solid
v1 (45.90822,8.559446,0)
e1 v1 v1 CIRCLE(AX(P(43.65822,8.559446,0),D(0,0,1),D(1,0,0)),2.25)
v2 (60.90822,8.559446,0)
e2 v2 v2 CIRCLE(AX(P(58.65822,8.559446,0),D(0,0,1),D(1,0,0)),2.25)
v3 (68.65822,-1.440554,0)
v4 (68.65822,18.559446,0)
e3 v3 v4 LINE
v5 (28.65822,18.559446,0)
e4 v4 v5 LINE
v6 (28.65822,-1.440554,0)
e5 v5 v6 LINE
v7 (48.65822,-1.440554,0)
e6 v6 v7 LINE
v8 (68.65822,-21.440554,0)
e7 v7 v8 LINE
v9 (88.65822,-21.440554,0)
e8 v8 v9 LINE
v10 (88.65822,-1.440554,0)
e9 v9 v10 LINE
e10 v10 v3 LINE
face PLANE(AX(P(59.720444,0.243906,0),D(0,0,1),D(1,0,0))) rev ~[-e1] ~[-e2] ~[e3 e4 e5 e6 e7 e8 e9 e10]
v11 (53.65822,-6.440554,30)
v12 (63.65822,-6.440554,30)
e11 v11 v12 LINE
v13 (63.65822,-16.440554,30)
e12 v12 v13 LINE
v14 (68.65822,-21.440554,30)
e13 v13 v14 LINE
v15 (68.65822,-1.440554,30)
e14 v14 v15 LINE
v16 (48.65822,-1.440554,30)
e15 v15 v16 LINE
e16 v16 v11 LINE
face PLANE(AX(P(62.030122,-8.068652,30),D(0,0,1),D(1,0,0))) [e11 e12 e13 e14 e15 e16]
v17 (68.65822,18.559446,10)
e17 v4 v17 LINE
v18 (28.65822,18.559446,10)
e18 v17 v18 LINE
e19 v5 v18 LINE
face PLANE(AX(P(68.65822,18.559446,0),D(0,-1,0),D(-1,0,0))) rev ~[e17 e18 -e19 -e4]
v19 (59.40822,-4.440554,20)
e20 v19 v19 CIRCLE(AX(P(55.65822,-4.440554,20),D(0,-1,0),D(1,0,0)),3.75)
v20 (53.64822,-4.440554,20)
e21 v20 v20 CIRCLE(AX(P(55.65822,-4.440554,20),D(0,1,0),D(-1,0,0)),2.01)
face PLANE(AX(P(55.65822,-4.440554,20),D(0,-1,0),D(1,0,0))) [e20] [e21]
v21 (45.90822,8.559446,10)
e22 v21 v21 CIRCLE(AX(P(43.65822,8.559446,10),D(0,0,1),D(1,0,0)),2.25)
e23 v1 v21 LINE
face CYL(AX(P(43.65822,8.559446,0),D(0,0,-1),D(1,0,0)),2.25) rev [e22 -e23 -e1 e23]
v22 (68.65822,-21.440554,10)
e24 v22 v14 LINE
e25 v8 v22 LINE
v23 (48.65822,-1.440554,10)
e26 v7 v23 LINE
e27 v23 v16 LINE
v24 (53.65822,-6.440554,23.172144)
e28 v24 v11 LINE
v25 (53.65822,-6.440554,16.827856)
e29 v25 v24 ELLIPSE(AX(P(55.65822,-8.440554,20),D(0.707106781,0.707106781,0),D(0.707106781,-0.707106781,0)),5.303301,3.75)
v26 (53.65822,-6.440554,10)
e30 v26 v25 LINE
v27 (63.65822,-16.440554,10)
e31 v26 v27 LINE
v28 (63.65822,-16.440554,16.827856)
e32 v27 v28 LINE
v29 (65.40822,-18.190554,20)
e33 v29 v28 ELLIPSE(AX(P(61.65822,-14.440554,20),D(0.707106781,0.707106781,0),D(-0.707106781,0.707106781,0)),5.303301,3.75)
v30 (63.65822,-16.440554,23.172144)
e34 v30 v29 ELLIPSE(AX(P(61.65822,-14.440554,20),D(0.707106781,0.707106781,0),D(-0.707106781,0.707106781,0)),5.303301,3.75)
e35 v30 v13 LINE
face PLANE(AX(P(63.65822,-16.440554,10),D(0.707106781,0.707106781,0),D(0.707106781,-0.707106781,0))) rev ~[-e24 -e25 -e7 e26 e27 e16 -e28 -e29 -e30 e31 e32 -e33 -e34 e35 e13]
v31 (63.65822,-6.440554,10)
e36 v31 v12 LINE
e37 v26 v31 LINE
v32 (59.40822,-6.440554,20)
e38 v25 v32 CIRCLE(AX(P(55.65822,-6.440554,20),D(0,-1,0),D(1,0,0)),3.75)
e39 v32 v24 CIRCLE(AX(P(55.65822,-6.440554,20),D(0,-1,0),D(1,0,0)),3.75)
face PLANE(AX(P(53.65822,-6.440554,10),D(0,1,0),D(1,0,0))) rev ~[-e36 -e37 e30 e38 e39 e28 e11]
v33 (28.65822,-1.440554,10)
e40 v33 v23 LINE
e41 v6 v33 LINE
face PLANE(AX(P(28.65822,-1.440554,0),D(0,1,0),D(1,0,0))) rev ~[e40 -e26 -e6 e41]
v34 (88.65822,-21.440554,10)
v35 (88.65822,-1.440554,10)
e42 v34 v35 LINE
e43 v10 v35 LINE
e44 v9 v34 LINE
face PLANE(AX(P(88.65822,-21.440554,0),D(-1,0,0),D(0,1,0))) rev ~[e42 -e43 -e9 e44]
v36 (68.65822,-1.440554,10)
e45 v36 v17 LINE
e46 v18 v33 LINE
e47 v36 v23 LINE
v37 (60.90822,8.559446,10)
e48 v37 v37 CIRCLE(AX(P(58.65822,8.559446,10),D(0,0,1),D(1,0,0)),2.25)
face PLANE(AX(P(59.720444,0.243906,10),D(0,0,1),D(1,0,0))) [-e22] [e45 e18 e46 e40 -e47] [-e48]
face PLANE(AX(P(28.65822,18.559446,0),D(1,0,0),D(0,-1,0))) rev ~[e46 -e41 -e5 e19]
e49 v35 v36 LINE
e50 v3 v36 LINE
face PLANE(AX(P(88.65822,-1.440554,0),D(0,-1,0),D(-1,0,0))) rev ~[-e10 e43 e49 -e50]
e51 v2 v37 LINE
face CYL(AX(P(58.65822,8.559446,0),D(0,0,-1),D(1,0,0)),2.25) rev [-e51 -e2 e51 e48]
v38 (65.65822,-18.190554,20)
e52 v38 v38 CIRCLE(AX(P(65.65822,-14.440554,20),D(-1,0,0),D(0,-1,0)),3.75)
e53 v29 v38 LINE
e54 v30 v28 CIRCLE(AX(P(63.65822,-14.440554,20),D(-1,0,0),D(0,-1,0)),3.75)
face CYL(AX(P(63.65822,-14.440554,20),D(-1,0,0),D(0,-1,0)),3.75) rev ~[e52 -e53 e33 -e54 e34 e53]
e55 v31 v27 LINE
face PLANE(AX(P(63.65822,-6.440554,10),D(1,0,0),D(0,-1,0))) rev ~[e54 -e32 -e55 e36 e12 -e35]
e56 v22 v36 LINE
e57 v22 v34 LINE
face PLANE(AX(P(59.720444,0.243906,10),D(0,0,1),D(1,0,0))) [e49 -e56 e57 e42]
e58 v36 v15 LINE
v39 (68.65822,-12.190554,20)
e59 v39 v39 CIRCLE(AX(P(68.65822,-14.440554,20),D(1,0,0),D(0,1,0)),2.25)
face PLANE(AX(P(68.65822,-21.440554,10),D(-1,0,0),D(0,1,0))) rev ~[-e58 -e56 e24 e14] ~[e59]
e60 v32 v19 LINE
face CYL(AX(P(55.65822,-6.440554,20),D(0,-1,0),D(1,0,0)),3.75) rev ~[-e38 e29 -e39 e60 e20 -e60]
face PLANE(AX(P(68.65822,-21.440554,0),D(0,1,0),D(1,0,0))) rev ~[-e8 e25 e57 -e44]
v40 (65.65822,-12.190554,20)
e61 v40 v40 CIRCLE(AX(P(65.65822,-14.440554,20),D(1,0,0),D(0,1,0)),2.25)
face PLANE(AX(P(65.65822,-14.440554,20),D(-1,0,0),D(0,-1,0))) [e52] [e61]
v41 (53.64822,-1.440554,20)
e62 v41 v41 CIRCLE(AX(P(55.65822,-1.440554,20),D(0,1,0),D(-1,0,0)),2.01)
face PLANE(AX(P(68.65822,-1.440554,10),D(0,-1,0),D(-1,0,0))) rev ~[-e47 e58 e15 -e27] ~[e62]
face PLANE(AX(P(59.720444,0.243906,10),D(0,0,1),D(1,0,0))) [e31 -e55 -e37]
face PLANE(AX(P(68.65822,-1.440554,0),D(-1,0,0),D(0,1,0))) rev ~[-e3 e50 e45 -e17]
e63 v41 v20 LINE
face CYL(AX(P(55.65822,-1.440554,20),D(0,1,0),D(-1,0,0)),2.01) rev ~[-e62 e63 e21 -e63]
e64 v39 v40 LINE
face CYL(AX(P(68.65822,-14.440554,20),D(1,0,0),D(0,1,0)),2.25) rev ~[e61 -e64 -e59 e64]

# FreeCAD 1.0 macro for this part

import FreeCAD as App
import Part
import Sketcher

V = App.Vector

doc = App.newDocument("Part")
body = doc.addObject("PartDesign::Body", "Body")

# Sketch on XY plane
sketch1 = body.newObject("Sketcher::SketchObject", "Sketch")
sketch1.AttachmentSupport = (doc.getObject("XY_Plane"), [""])
sketch1.MapMode = "FlatFace"
sketch1.addGeometry([
    Part.LineSegment(V(28.65822, 18.559446, 0), V(28.65822, -1.440554, 0)),  # 0
    Part.LineSegment(V(28.65822, -1.440554, 0), V(48.65822, -1.440554, 0)),  # 1
    Part.LineSegment(V(48.65822, -1.440554, 0), V(68.65822, -21.440554, 0)),  # 2
    Part.LineSegment(V(68.65822, -21.440554, 0), V(88.65822, -21.440554, 0)),  # 3
    Part.LineSegment(V(88.65822, -21.440554, 0), V(88.65822, -1.440554, 0)),  # 4
    Part.LineSegment(V(88.65822, -1.440554, 0), V(68.65822, -1.440554, 0)),  # 5
    Part.LineSegment(V(68.65822, -1.440554, 0), V(68.65822, 18.559446, 0)),  # 6
    Part.LineSegment(V(68.65822, 18.559446, 0), V(28.65822, 18.559446, 0)),  # 7
    Part.Circle(V(43.65822, 8.559446, 0), V(0, 0, 1), 2.25),  # 8
    Part.Circle(V(58.65822, 8.559446, 0), V(0, 0, 1), 2.25),  # 9
], False)
sketch1.addConstraint([
    Sketcher.Constraint("Coincident", 0, 2, 1, 1),
    Sketcher.Constraint("Coincident", 1, 2, 2, 1),
    Sketcher.Constraint("Coincident", 2, 2, 3, 1),
    Sketcher.Constraint("Coincident", 3, 2, 4, 1),
    Sketcher.Constraint("Coincident", 4, 2, 5, 1),
    Sketcher.Constraint("Coincident", 5, 2, 6, 1),
    Sketcher.Constraint("Coincident", 6, 2, 7, 1),
    Sketcher.Constraint("Coincident", 7, 2, 0, 1),
    Sketcher.Constraint("Vertical", 0),
    Sketcher.Constraint("Horizontal", 1),
    Sketcher.Constraint("Horizontal", 3),
    Sketcher.Constraint("Vertical", 4),
    Sketcher.Constraint("Horizontal", 5),
    Sketcher.Constraint("Vertical", 6),
    Sketcher.Constraint("Horizontal", 7),
    Sketcher.Constraint("Equal", 8, 9),
    Sketcher.Constraint("Horizontal", 8, 3, 9, 3),
    Sketcher.Constraint("Horizontal", 1, 2, 4, 2),
    Sketcher.Constraint("Vertical", 2, 2, 5, 2),
    Sketcher.Constraint("Equal", 1, 3),
    Sketcher.Constraint("Equal", 5, 0),
    Sketcher.Constraint("Equal", 0, 4),
    Sketcher.Constraint("Diameter", 8, 4.5),
    Sketcher.Constraint("DistanceX", 1, 1, 1, 2, 20.0),
    Sketcher.Constraint("DistanceX", 7, 2, 7, 1, 40.0),
    Sketcher.Constraint("DistanceX", 8, 3, 9, 3, 15.0),
    Sketcher.Constraint("DistanceX", 0, 2, 8, 3, 15.0),
    Sketcher.Constraint("DistanceY", 0, 2, 8, 3, 10.0),
    Sketcher.Constraint("DistanceX", -1, 1, 8, 3, 43.65822),
    Sketcher.Constraint("DistanceY", -1, 1, 8, 3, 8.559446),
])
pad1 = body.newObject("PartDesign::Pad", "Pad")
pad1.Profile = sketch1
pad1.Length = 10

# Sketch on XY plane
sketch2 = body.newObject("Sketcher::SketchObject", "Sketch001")
sketch2.AttachmentSupport = (doc.getObject("XY_Plane"), [""])
sketch2.MapMode = "FlatFace"
sketch2.AttachmentOffset = App.Placement(V(0, 0, 10), App.Rotation())
sketch2.addGeometry([
    Part.LineSegment(V(68.65822, -21.440554, 0), V(68.65822, -1.440554, 0)),  # 0
    Part.LineSegment(V(68.65822, -1.440554, 0), V(48.65822, -1.440554, 0)),  # 1
    Part.LineSegment(V(48.65822, -1.440554, 0), V(53.65822, -6.440554, 0)),  # 2
    Part.LineSegment(V(53.65822, -6.440554, 0), V(63.65822, -6.440554, 0)),  # 3
    Part.LineSegment(V(63.65822, -6.440554, 0), V(63.65822, -16.440554, 0)),  # 4
    Part.LineSegment(V(63.65822, -16.440554, 0), V(68.65822, -21.440554, 0)),  # 5
], False)
sketch2.addConstraint([
    Sketcher.Constraint("Coincident", 0, 2, 1, 1),
    Sketcher.Constraint("Coincident", 1, 2, 2, 1),
    Sketcher.Constraint("Coincident", 2, 2, 3, 1),
    Sketcher.Constraint("Coincident", 3, 2, 4, 1),
    Sketcher.Constraint("Coincident", 4, 2, 5, 1),
    Sketcher.Constraint("Coincident", 5, 2, 0, 1),
    Sketcher.Constraint("Vertical", 0),
    Sketcher.Constraint("Horizontal", 1),
    Sketcher.Constraint("Horizontal", 3),
    Sketcher.Constraint("Vertical", 4),
    Sketcher.Constraint("Parallel", 2, 5),
    Sketcher.Constraint("Equal", 1, 0),
    Sketcher.Constraint("Equal", 3, 4),
    Sketcher.Constraint("Equal", 2, 5),
    Sketcher.Constraint("DistanceX", 1, 2, 1, 1, 20.0),
    Sketcher.Constraint("DistanceX", 3, 1, 3, 2, 10.0),
    Sketcher.Constraint("DistanceX", -1, 1, 0, 2, 68.65822),
    Sketcher.Constraint("DistanceY", 0, 2, -1, 1, 1.440554),
])
pad2 = body.newObject("PartDesign::Pad", "Pad001")
pad2.Profile = sketch2
pad2.Length = 20

# Sketch on YZ plane
sketch3 = body.newObject("Sketcher::SketchObject", "Sketch002")
sketch3.AttachmentSupport = (doc.getObject("YZ_Plane"), [""])
sketch3.MapMode = "FlatFace"
sketch3.AttachmentOffset = App.Placement(V(0, 0, 68.65822), App.Rotation())
sketch3.addGeometry(Part.Circle(V(-14.440554, 20, 0), V(0, 0, 1), 2.25), False)
sketch3.addConstraint([
    Sketcher.Constraint("Diameter", 0, 4.5),
    Sketcher.Constraint("DistanceY", -1, 1, 0, 3, 20.0),
    Sketcher.Constraint("DistanceX", 0, 3, -1, 1, 14.440554),
])
pocket1 = body.newObject("PartDesign::Pocket", "Pocket")
pocket1.Profile = sketch3
pocket1.Length = 5

# Sketch on XZ plane
sketch4 = body.newObject("Sketcher::SketchObject", "Sketch003")
sketch4.AttachmentSupport = (doc.getObject("XZ_Plane"), [""])
sketch4.MapMode = "FlatFace"
sketch4.AttachmentOffset = App.Placement(V(0, 0, 1.440554), App.Rotation())
sketch4.addGeometry(Part.Circle(V(55.65822, 20, 0), V(0, 0, 1), 2.01), False)
sketch4.addConstraint([
    Sketcher.Constraint("Diameter", 0, 4.02),
    Sketcher.Constraint("DistanceY", -1, 1, 0, 3, 20.0),
    Sketcher.Constraint("DistanceX", -1, 1, 0, 3, 55.65822),
])
pocket2 = body.newObject("PartDesign::Pocket", "Pocket001")
pocket2.Profile = sketch4
pocket2.Length = 5
pocket2.Reversed = True

# Sketch on YZ plane
sketch5 = body.newObject("Sketcher::SketchObject", "Sketch004")
sketch5.AttachmentSupport = (doc.getObject("YZ_Plane"), [""])
sketch5.MapMode = "FlatFace"
sketch5.AttachmentOffset = App.Placement(V(0, 0, 63.65822), App.Rotation())
sketch5.addGeometry(Part.Circle(V(-14.440554, 20, 0), V(0, 0, 1), 3.75), False)
sketch5.addConstraint([
    Sketcher.Constraint("Diameter", 0, 7.5),
    Sketcher.Constraint("DistanceY", -1, 1, 0, 3, 20.0),
    Sketcher.Constraint("DistanceX", 0, 3, -1, 1, 14.440554),
])
pocket3 = body.newObject("PartDesign::Pocket", "Pocket002")
pocket3.Profile = sketch5
pocket3.Length = 2
pocket3.Reversed = True

# Sketch on XZ plane
sketch6 = body.newObject("Sketcher::SketchObject", "Sketch005")
sketch6.AttachmentSupport = (doc.getObject("XZ_Plane"), [""])
sketch6.MapMode = "FlatFace"
sketch6.AttachmentOffset = App.Placement(V(0, 0, 6.440554), App.Rotation())
sketch6.addGeometry(Part.Circle(V(55.65822, 20, 0), V(0, 0, 1), 3.75), False)
sketch6.addConstraint([
    Sketcher.Constraint("Diameter", 0, 7.5),
    Sketcher.Constraint("DistanceY", -1, 1, 0, 3, 20.0),
    Sketcher.Constraint("DistanceX", -1, 1, 0, 3, 55.65822),
])
pocket4 = body.newObject("PartDesign::Pocket", "Pocket003")
pocket4.Profile = sketch6
pocket4.Length = 2

doc.recompute()
